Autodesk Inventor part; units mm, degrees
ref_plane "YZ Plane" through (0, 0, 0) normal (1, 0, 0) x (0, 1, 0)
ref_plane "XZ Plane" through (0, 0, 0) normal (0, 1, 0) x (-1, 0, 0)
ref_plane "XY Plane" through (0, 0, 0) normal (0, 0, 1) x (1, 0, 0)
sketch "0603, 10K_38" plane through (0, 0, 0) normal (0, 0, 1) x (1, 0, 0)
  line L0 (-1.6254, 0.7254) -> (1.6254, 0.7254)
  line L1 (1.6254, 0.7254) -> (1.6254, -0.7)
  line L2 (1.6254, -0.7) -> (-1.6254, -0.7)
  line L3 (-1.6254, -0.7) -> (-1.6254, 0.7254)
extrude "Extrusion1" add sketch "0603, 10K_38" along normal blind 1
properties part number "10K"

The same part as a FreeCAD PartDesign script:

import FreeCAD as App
import Part
import Sketcher
Q = App.Units.Quantity


def add_polygon(sketch, points):
    """Adds a closed chain of lines whose ends are joined by coincident constraints."""
    first, n = sketch.GeometryCount, len(points)
    for a, b in zip(points, points[1:] + points[:1]):
        sketch.addGeometry(Part.LineSegment(App.Vector(*a, 0), App.Vector(*b, 0)), False)
    for i in range(n):
        sketch.addConstraint(Sketcher.Constraint("Coincident", first + i, 2, first + (i + 1) % n, 1))

doc = App.newDocument("Part")
body = doc.addObject("PartDesign::Body", "Body")

sketch1 = body.newObject("Sketcher::SketchObject", "Sketch")
sketch1.AttachmentSupport = (doc.getObject("XY_Plane"), [""])
sketch1.MapMode = "FlatFace"
add_polygon(sketch1, [(1.6, 0.7), (-1.6, 0.7), (-1.6, -0.7), (1.6, -0.7)])
sketch1.addConstraint([
    Sketcher.Constraint("Horizontal", 0),
    Sketcher.Constraint("Vertical", 1),
    Sketcher.Constraint("Horizontal", 2),
    Sketcher.Constraint("Vertical", 3),
    Sketcher.Constraint("DistanceY", 1, 2, -1, 1, Q("0.7 mm")),
    Sketcher.Constraint("DistanceX", 0, 2, 0, 1, Q("3.2508 mm")),
    Sketcher.Constraint("DistanceY", 1, 2, 1, 1, Q("1.4254 mm")),
    Sketcher.Constraint("DistanceX", 0, 2, -1, 1, Q("1.6254 mm")),
])
pad1 = body.newObject("PartDesign::Pad", "Pad")
pad1.Profile = sketch1
pad1.Length = 1

doc.recompute()
